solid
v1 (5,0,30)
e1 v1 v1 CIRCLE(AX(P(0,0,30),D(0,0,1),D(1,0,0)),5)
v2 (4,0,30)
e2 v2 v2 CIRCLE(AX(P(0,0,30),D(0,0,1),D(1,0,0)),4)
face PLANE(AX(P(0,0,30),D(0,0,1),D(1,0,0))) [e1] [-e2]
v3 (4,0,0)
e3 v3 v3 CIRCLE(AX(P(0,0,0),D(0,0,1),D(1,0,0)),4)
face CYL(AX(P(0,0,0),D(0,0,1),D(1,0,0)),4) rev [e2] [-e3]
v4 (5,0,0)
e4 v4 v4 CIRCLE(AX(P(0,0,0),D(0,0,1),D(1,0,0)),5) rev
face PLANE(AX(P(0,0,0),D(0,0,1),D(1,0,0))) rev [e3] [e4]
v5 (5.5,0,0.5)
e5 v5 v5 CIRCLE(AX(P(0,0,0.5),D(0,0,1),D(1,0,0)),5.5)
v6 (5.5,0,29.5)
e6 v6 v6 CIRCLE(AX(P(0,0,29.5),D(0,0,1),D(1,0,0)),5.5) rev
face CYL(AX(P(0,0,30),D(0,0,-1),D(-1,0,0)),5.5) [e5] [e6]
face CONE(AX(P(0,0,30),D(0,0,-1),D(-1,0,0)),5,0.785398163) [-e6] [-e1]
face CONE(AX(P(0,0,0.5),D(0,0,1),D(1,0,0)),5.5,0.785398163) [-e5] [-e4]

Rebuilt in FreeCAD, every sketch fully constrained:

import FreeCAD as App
import Part
import Sketcher
from FreeCAD import Vector
Q = App.Units.Quantity


def edges_at(feature, points):
    """Names of the edges that pass closest to the given points."""
    edges = feature.Shape.Edges
    near = lambda p: min(range(len(edges)), key=lambda i: edges[i].distToShape(Part.Vertex(*p))[0])
    return sorted({f"Edge{near(p) + 1}" for p in points})

doc = App.newDocument("Part")
body = doc.addObject("PartDesign::Body", "Body")

sketch1 = body.newObject("Sketcher::SketchObject", "Sketch")
sketch1.AttachmentSupport = (doc.getObject("XY_Plane"), [""])
sketch1.MapMode = "FlatFace"
sketch1.addGeometry(Part.Circle(Vector(0, 0, 0), Vector(0, 0, 1), 5.5), False)
sketch1.addConstraint(Sketcher.Constraint("Coincident", 0, 3, -1, 1))
sketch1.addConstraint(Sketcher.Constraint("Diameter", 0, Q("11 mm")))
pad1 = body.newObject("PartDesign::Pad", "Pad")
pad1.Profile = sketch1
pad1.Length = 30

sketch2 = body.newObject("Sketcher::SketchObject", "Sketch001")
sketch2.AttachmentSupport = (doc.getObject("XY_Plane"), [""])
sketch2.MapMode = "FlatFace"
sketch2.AttachmentOffset = App.Placement(Vector(0, 0, 30), App.Rotation())
sketch2.addGeometry(Part.Circle(Vector(0, 0, 0), Vector(0, 0, 1), 4), False)
sketch2.addConstraint(Sketcher.Constraint("Coincident", 0, 3, -1, 1))
sketch2.addConstraint(Sketcher.Constraint("Diameter", 0, Q("8 mm")))
pocket1 = body.newObject("PartDesign::Pocket", "Pocket")
pocket1.Profile = sketch2
pocket1.Type = "ThroughAll"
doc.recompute()

chamfer = body.newObject("PartDesign::Chamfer", "Chamfer")
chamfer.Base = (pocket1, edges_at(pocket1, [(-5.5, 0, 0), (-5.5, 0, 30)]))
chamfer.Size = 0.5

doc.recompute()
